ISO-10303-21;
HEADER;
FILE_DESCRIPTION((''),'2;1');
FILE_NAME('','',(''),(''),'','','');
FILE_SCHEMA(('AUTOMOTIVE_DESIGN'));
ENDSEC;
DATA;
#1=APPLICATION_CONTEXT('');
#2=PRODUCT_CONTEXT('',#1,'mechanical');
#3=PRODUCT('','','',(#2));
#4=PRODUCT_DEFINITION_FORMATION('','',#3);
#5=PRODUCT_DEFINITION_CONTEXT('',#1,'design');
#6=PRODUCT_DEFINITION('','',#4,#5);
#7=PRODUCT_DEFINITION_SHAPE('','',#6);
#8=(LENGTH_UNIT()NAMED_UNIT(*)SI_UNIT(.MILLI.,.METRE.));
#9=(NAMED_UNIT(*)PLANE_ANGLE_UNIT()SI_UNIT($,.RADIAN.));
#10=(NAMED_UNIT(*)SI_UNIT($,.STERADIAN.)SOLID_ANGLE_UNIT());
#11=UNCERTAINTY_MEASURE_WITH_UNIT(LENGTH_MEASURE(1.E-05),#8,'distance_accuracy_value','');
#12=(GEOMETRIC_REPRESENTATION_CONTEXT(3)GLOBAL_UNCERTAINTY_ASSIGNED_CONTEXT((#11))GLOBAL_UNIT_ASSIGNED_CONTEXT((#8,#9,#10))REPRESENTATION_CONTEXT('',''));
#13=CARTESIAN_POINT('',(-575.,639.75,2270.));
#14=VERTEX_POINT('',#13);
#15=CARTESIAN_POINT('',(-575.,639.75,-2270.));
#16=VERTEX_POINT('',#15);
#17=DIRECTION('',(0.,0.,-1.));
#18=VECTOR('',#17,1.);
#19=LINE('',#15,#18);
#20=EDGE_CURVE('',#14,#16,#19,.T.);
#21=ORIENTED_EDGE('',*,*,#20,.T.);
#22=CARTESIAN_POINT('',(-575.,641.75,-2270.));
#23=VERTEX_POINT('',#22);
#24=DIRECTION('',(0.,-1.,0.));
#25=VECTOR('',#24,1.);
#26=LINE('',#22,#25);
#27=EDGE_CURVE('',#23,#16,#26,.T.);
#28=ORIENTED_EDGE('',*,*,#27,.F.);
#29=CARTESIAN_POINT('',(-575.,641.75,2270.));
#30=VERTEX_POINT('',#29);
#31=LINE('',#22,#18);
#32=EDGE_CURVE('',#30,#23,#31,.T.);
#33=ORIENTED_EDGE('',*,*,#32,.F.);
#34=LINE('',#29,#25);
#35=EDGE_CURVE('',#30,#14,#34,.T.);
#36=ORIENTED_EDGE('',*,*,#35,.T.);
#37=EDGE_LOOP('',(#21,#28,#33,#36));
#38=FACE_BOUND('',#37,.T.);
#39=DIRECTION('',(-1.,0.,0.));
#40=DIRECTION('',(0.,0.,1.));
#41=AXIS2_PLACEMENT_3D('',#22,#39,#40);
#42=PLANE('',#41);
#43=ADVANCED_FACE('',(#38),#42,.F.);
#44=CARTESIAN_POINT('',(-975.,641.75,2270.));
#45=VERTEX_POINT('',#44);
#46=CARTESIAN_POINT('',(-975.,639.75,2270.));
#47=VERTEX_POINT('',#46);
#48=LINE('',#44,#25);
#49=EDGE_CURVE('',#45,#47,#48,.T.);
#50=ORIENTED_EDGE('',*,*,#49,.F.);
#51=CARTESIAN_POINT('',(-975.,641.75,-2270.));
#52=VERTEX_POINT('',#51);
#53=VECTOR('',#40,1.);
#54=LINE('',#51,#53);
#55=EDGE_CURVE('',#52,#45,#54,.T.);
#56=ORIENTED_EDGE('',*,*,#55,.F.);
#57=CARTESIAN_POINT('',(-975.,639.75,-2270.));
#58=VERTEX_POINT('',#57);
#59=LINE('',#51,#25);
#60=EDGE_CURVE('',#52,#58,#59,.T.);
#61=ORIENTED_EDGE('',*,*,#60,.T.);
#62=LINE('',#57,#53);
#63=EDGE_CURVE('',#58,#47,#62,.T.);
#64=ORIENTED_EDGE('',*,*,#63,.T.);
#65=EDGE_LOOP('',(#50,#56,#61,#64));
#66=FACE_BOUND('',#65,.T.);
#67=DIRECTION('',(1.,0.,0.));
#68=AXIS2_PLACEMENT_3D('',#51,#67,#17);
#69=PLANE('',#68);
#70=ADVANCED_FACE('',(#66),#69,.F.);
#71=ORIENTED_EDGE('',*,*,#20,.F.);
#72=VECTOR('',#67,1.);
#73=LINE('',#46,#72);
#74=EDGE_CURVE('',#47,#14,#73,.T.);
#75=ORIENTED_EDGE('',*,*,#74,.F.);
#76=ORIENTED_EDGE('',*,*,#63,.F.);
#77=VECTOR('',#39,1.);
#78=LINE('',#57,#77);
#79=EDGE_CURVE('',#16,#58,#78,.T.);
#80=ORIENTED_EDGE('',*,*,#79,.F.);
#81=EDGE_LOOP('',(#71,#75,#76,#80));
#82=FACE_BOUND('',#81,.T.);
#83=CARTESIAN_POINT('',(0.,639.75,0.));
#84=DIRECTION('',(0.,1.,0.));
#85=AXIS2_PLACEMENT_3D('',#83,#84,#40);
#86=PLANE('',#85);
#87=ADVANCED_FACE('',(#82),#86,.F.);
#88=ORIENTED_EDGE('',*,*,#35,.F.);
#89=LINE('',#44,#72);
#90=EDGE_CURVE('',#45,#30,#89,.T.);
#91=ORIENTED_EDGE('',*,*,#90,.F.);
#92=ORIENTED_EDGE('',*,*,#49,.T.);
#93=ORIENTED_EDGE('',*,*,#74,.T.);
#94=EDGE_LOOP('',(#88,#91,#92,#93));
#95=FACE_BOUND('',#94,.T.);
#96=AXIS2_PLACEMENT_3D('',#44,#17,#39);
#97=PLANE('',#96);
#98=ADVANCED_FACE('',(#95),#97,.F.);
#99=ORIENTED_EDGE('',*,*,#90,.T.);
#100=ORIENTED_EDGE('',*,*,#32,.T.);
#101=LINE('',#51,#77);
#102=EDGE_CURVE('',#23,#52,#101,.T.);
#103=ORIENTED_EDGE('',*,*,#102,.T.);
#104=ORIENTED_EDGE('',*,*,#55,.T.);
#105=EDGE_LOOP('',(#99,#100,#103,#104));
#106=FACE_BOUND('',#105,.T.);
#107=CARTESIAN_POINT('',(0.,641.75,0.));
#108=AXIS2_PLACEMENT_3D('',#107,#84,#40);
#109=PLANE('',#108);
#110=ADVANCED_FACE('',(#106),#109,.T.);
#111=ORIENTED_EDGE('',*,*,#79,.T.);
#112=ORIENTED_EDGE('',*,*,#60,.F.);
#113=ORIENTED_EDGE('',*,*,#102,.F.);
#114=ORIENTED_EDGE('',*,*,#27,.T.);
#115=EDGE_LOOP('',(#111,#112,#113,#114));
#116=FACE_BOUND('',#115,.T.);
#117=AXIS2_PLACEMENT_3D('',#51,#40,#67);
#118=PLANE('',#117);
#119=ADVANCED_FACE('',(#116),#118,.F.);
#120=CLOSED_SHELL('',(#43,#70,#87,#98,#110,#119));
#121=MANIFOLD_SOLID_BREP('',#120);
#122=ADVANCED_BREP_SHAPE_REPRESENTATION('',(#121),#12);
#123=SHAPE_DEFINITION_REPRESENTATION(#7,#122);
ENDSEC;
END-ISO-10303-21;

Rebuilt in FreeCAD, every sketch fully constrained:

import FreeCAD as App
import Part
import Sketcher

doc = App.newDocument("Part")
body = doc.addObject("PartDesign::Body", "Body")

# Sketch on XZ plane
sketch1 = doc.addObject("Sketcher::SketchObject", "Sketch")
body.addObject(sketch1)
sketch1.AttachmentSupport = (doc.XZ_Plane, [""])
sketch1.MapMode = "FlatFace"
sketch1.AttachmentOffset = App.Placement(App.Vector(0, 0, -639.75), App.Rotation())
sketch1.addGeometry(Part.LineSegment(App.Vector(-975, -2270, 0), App.Vector(-975, 2270, 0)), False)
sketch1.addGeometry(Part.LineSegment(App.Vector(-975, 2270, 0), App.Vector(-575, 2270, 0)), False)
sketch1.addGeometry(Part.LineSegment(App.Vector(-575, 2270, 0), App.Vector(-575, -2270, 0)), False)
sketch1.addGeometry(Part.LineSegment(App.Vector(-575, -2270, 0), App.Vector(-975, -2270, 0)), False)
sketch1.addConstraint(Sketcher.Constraint("Coincident", 0, 2, 1, 1))
sketch1.addConstraint(Sketcher.Constraint("Coincident", 1, 2, 2, 1))
sketch1.addConstraint(Sketcher.Constraint("Coincident", 2, 2, 3, 1))
sketch1.addConstraint(Sketcher.Constraint("Coincident", 3, 2, 0, 1))
sketch1.addConstraint(Sketcher.Constraint("Vertical", 0))
sketch1.addConstraint(Sketcher.Constraint("Horizontal", 1))
sketch1.addConstraint(Sketcher.Constraint("Vertical", 2))
sketch1.addConstraint(Sketcher.Constraint("Horizontal", 3))
sketch1.addConstraint(Sketcher.Constraint("DistanceX", 1, 1, 1, 2, 400.0))
sketch1.addConstraint(Sketcher.Constraint("DistanceY", 0, 1, 0, 2, 4540.0))
sketch1.addConstraint(Sketcher.Constraint("DistanceX", 0, 2, -1, 1, 975.0))
sketch1.addConstraint(Sketcher.Constraint("DistanceY", -1, 1, 0, 2, 2270.0))
pad1 = doc.addObject("PartDesign::Pad", "Pad")
body.addObject(pad1)
pad1.Profile = sketch1
pad1.Length = 2
pad1.Reversed = True

doc.recompute()
